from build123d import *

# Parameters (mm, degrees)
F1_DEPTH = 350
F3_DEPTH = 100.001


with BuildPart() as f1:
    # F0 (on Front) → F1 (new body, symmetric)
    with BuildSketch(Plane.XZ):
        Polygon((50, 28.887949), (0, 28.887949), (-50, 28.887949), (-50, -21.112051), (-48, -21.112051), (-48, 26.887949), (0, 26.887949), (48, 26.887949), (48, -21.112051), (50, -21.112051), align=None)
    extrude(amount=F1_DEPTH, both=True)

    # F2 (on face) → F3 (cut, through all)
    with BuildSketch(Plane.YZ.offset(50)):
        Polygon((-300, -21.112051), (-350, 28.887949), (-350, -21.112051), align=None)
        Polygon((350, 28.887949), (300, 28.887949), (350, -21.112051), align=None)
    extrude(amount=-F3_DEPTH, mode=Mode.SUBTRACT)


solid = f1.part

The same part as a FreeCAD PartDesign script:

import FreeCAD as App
import Part
import Sketcher


def add_polygon(sketch, points):
    """Adds a closed chain of lines whose ends are joined by coincident constraints."""
    first, n = sketch.GeometryCount, len(points)
    for a, b in zip(points, points[1:] + points[:1]):
        sketch.addGeometry(Part.LineSegment(App.Vector(*a, 0), App.Vector(*b, 0)), False)
    for i in range(n):
        sketch.addConstraint(Sketcher.Constraint("Coincident", first + i, 2, first + (i + 1) % n, 1))

doc = App.newDocument("Part")
body = doc.addObject("PartDesign::Body", "Body")

# Sketch on XZ plane
sketch1 = body.newObject("Sketcher::SketchObject", "Sketch")
sketch1.AttachmentSupport = (doc.getObject("XZ_Plane"), [""])
sketch1.MapMode = "FlatFace"
add_polygon(sketch1, [(50, 28.9), (-50, 28.9), (-50, -21.1), (-48, -21.1), (-48, 26.9), (48, 26.9), (48, -21.1), (50, -21.1)])  # lines 0-7
sketch1.addConstraint(Sketcher.Constraint("Horizontal", 0))
sketch1.addConstraint(Sketcher.Constraint("Vertical", 1))
sketch1.addConstraint(Sketcher.Constraint("Horizontal", 2))
sketch1.addConstraint(Sketcher.Constraint("Vertical", 3))
sketch1.addConstraint(Sketcher.Constraint("Horizontal", 4))
sketch1.addConstraint(Sketcher.Constraint("Vertical", 5))
sketch1.addConstraint(Sketcher.Constraint("Horizontal", 6))
sketch1.addConstraint(Sketcher.Constraint("Vertical", 7))
sketch1.addConstraint(Sketcher.Constraint("Symmetric", 2, 2, 5, 2, -2))
sketch1.addConstraint(Sketcher.Constraint("Equal", 2, 6))
sketch1.addConstraint(Sketcher.Constraint("DistanceX", 0, 2, 0, 1, 100.0))
sketch1.addConstraint(Sketcher.Constraint("DistanceX", 2, 1, 2, 2, 2.0))
sketch1.addConstraint(Sketcher.Constraint("DistanceY", 1, 2, 1, 1, 50.0))
sketch1.addConstraint(Sketcher.Constraint("DistanceY", 3, 1, 3, 2, 48.0))
sketch1.addConstraint(Sketcher.Constraint("DistanceY", -1, 1, 0, 2, 28.887949))
pad1 = body.newObject("PartDesign::Pad", "Pad")
pad1.Profile = sketch1
pad1.Length = 700
pad1.Midplane = True

# Sketch on YZ plane
sketch2 = body.newObject("Sketcher::SketchObject", "Sketch001")
sketch2.AttachmentSupport = (doc.getObject("YZ_Plane"), [""])
sketch2.MapMode = "FlatFace"
sketch2.AttachmentOffset = App.Placement(App.Vector(0, 0, 50), App.Rotation())
add_polygon(sketch2, [(-300, -21), (-350, 29), (-350, -21)])  # lines 0-2
add_polygon(sketch2, [(350, 29), (300, 29), (350, -21)])  # lines 3-5
sketch2.addConstraint(Sketcher.Constraint("Vertical", 1))
sketch2.addConstraint(Sketcher.Constraint("Horizontal", 2))
sketch2.addConstraint(Sketcher.Constraint("Horizontal", 3))
sketch2.addConstraint(Sketcher.Constraint("Vertical", 5))
sketch2.addConstraint(Sketcher.Constraint("Symmetric", 1, 2, 4, 2, -2))
sketch2.addConstraint(Sketcher.Constraint("Parallel", 0, 4))
sketch2.addConstraint(Sketcher.Constraint("Horizontal", 0, 2, 3, 2))
sketch2.addConstraint(Sketcher.Constraint("Equal", 3, 1))
sketch2.addConstraint(Sketcher.Constraint("DistanceX", 2, 1, 2, 2, 50.0))
sketch2.addConstraint(Sketcher.Constraint("DistanceX", 0, 2, -1, 1, 350.0))
sketch2.addConstraint(Sketcher.Constraint("DistanceY", -1, 1, 0, 2, 28.887949))
pocket1 = body.newObject("PartDesign::Pocket", "Pocket")
pocket1.Profile = sketch2
pocket1.Type = "ThroughAll"

doc.recompute()
